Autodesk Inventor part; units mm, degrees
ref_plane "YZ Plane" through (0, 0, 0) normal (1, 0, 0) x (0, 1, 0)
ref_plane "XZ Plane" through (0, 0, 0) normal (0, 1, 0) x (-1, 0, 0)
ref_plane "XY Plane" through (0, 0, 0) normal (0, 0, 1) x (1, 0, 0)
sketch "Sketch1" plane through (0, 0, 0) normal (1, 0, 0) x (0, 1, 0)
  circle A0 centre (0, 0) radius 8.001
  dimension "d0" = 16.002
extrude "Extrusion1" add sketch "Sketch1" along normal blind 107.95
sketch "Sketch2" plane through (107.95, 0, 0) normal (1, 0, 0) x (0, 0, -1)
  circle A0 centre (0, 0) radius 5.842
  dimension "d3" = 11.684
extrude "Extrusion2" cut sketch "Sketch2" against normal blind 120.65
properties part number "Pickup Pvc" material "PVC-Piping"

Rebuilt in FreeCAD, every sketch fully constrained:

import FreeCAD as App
import Part
import Sketcher

V = App.Vector
Q = App.Units.Quantity

doc = App.newDocument("Part")
body = doc.addObject("PartDesign::Body", "Body")

# Sketch on YZ plane
sketch1 = body.newObject("Sketcher::SketchObject", "Sketch")
sketch1.AttachmentSupport = (doc.getObject("YZ_Plane"), [""])
sketch1.MapMode = "FlatFace"
sketch1.addGeometry(Part.Circle(V(0, 0, 0), V(0, 0, 1), 8), False)
sketch1.addConstraint([
    Sketcher.Constraint("Coincident", 0, 3, -1, 1),
    Sketcher.Constraint("Diameter", 0, Q("0.63 in")),
])
pad1 = body.newObject("PartDesign::Pad", "Pad")
pad1.Profile = sketch1
pad1.Length = Q("4.25 in")

# Sketch on YZ plane
sketch2 = body.newObject("Sketcher::SketchObject", "Sketch001")
sketch2.AttachmentSupport = (doc.getObject("YZ_Plane"), [""])
sketch2.MapMode = "FlatFace"
sketch2.AttachmentOffset = App.Placement(V(0, 0, 4.25 * 25.4), App.Rotation())
sketch2.addGeometry(Part.Circle(V(0, 0, 0), V(0, 0, 1), 6), False)
sketch2.addConstraint([
    Sketcher.Constraint("Coincident", 0, 3, -1, 1),
    Sketcher.Constraint("Diameter", 0, Q("0.46 in")),
])
pocket1 = body.newObject("PartDesign::Pocket", "Pocket")
pocket1.Profile = sketch2
pocket1.Length = Q("4.75 in")

doc.recompute()
